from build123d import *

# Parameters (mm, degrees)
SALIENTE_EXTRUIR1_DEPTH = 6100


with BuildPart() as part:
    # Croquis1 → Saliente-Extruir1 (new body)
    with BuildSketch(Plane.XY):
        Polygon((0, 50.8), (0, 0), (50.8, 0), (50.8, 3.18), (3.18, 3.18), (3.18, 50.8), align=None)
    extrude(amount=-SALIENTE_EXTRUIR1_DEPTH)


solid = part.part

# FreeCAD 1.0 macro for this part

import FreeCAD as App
import Part
import Sketcher

V = App.Vector


def add_polygon(sketch, points):
    """Adds a closed chain of lines whose ends are joined by coincident constraints."""
    first, n = sketch.GeometryCount, len(points)
    for a, b in zip(points, points[1:] + points[:1]):
        sketch.addGeometry(Part.LineSegment(App.Vector(*a, 0), App.Vector(*b, 0)), False)
    for i in range(n):
        sketch.addConstraint(Sketcher.Constraint("Coincident", first + i, 2, first + (i + 1) % n, 1))

doc = App.newDocument("Part")
body = doc.addObject("PartDesign::Body", "Body")

# Sketch on XY plane
sketch1 = body.newObject("Sketcher::SketchObject", "Sketch")
sketch1.AttachmentSupport = (doc.getObject("XY_Plane"), [""])
sketch1.MapMode = "FlatFace"
add_polygon(sketch1, [(0, 50.8), (0, 0), (50.8, 0), (50.8, 3.2), (3.2, 3.2), (3.2, 50.8)])  # lines 0-5
sketch1.addConstraint([
    Sketcher.Constraint("Vertical", 0),
    Sketcher.Constraint("Horizontal", 1),
    Sketcher.Constraint("Vertical", 2),
    Sketcher.Constraint("Horizontal", 3),
    Sketcher.Constraint("Vertical", 4),
    Sketcher.Constraint("Horizontal", 5),
    Sketcher.Constraint("Coincident", 0, 2, -1, 1),
    Sketcher.Constraint("Equal", 1, 0),
    Sketcher.Constraint("Equal", 5, 2),
    Sketcher.Constraint("DistanceX", 1, 1, 1, 2, 50.8),
    Sketcher.Constraint("DistanceX", 3, 2, 3, 1, 47.62),
])
pad1 = body.newObject("PartDesign::Pad", "Pad")
pad1.Profile = sketch1
pad1.Length = 6100
pad1.Reversed = True

doc.recompute()
